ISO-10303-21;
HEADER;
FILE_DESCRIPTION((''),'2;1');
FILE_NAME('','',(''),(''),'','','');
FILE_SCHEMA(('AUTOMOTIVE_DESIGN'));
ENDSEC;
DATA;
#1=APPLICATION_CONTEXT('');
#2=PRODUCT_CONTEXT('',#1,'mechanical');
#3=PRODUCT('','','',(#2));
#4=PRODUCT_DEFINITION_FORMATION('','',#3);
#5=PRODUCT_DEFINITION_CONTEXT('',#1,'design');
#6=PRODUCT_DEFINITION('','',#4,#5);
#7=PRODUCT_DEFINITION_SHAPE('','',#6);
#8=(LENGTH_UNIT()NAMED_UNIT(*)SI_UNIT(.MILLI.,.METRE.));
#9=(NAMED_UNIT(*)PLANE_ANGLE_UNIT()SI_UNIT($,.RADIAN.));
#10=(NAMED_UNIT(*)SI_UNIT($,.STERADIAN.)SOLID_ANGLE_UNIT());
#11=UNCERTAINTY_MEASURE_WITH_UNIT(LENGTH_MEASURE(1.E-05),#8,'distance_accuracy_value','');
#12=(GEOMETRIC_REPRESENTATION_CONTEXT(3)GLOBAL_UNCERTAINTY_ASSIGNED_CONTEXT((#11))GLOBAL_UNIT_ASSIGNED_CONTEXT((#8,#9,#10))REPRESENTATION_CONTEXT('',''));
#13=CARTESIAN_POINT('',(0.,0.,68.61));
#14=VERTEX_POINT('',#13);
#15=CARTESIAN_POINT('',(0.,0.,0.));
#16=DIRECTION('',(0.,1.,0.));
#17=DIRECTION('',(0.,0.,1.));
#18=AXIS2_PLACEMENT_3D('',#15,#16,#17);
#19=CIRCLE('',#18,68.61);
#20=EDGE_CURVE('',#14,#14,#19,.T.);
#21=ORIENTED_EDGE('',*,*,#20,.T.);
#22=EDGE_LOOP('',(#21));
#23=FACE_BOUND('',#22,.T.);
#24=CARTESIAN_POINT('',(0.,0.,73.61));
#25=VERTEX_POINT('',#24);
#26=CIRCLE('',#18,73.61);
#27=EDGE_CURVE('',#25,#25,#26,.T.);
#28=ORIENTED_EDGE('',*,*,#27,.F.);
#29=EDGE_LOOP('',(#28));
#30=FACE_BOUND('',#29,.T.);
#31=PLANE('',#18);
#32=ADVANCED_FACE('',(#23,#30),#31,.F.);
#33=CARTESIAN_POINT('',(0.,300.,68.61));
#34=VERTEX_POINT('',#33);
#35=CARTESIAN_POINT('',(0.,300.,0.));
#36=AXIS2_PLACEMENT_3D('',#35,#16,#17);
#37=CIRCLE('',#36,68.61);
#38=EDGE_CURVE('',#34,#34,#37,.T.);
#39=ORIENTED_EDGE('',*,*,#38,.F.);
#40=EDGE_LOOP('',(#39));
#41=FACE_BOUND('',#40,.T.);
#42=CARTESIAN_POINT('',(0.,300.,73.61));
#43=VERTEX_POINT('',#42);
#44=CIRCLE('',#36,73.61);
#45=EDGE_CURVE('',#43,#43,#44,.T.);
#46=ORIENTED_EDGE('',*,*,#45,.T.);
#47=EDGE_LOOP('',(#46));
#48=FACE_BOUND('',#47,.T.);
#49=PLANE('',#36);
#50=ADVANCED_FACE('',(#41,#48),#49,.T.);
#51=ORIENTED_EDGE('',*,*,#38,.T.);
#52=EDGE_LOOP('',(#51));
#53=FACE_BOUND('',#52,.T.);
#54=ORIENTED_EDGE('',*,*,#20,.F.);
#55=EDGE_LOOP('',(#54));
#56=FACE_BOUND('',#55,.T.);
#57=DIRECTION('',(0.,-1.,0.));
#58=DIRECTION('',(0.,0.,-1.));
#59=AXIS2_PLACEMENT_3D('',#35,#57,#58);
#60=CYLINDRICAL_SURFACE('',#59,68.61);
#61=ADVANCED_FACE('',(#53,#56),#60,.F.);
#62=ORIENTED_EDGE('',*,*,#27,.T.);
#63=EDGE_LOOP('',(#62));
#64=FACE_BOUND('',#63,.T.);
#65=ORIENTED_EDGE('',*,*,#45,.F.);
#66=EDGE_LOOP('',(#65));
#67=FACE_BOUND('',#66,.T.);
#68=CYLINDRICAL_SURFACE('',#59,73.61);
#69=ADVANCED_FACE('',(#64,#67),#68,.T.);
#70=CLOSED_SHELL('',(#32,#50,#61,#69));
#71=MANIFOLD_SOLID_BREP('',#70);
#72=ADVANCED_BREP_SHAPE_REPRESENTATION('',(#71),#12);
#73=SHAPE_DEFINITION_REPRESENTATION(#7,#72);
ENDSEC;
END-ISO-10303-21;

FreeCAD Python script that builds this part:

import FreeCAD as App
import Part
import Sketcher

V = App.Vector

doc = App.newDocument("Part")
body = doc.addObject("PartDesign::Body", "Body")

# Sketch on XZ plane
sketch1 = body.newObject("Sketcher::SketchObject", "Sketch")
sketch1.AttachmentSupport = (doc.getObject("XZ_Plane"), [""])
sketch1.MapMode = "FlatFace"
sketch1.addGeometry([
    Part.Circle(V(0, 0, 0), V(0, 0, 1), 74),
    Part.Circle(V(0, 0, 0), V(0, 0, 1), 69),
], False)
sketch1.addConstraint([
    Sketcher.Constraint("Coincident", 0, 3, -1, 1),
    Sketcher.Constraint("Coincident", 1, 3, -1, 1),
    Sketcher.Constraint("Diameter", 0, 147.22),
    Sketcher.Constraint("Diameter", 1, 137.22),
])
pad1 = body.newObject("PartDesign::Pad", "Pad")
pad1.Profile = sketch1
pad1.Length = 300
pad1.Reversed = True

doc.recompute()
